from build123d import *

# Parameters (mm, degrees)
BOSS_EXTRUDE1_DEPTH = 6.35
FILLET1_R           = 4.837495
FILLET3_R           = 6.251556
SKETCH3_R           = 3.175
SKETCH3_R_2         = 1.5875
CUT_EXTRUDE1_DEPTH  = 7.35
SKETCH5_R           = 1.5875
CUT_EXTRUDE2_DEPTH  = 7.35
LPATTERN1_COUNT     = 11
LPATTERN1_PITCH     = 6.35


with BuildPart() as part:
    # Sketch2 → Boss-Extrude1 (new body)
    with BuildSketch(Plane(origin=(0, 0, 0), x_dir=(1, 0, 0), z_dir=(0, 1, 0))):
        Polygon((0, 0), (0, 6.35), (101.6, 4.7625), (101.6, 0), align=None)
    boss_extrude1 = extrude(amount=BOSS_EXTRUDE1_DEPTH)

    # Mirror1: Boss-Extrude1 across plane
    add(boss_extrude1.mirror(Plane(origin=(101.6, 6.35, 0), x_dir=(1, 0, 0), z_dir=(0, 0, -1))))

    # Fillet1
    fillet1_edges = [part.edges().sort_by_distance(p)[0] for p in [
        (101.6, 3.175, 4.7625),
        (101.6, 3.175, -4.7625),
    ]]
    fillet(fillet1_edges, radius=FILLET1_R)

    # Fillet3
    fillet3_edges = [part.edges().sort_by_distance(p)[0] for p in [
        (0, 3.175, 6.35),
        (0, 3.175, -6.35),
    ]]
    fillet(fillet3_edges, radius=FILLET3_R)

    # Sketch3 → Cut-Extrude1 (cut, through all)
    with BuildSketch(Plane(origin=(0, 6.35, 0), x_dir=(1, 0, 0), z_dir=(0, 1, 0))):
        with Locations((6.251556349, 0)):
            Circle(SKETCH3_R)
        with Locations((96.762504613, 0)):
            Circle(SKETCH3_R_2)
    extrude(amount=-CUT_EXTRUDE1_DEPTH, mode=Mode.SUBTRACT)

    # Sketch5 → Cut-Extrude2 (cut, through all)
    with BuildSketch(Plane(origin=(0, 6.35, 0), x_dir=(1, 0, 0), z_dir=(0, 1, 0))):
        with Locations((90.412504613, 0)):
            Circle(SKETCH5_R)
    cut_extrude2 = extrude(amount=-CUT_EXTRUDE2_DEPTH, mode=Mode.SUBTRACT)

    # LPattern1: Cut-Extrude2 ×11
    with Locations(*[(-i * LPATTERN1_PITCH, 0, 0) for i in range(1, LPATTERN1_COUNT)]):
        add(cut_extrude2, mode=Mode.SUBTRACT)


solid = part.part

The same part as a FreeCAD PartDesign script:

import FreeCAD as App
import Part
import Sketcher
Q = App.Units.Quantity


def edges_at(feature, points):
    """Names of the edges that pass closest to the given points."""
    edges = feature.Shape.Edges
    near = lambda p: min(range(len(edges)), key=lambda i: edges[i].distToShape(Part.Vertex(*p))[0])
    return sorted({f"Edge{near(p) + 1}" for p in points})

doc = App.newDocument("Part")
body = doc.addObject("PartDesign::Body", "Body")

# Sketch on XZ plane
sketch1 = body.newObject("Sketcher::SketchObject", "Sketch")
sketch1.AttachmentSupport = (doc.getObject("XZ_Plane"), [""])
sketch1.MapMode = "FlatFace"
sketch1.addGeometry(Part.LineSegment(App.Vector(0, -6.3, 0), App.Vector(0, 0, 0)), False)
sketch1.addGeometry(Part.LineSegment(App.Vector(0, 0, 0), App.Vector(101.6, 0, 0)), False)
sketch1.addGeometry(Part.LineSegment(App.Vector(101.6, 0, 0), App.Vector(101.6, -4.8, 0)), False)
sketch1.addGeometry(Part.LineSegment(App.Vector(101.6, -4.8, 0), App.Vector(0, -6.3, 0)), False)
sketch1.addConstraint(Sketcher.Constraint("Coincident", 0, 2, 1, 1))
sketch1.addConstraint(Sketcher.Constraint("Coincident", 1, 2, 2, 1))
sketch1.addConstraint(Sketcher.Constraint("Coincident", 2, 2, 3, 1))
sketch1.addConstraint(Sketcher.Constraint("Coincident", 3, 2, 0, 1))
sketch1.addConstraint(Sketcher.Constraint("Vertical", 0))
sketch1.addConstraint(Sketcher.Constraint("Horizontal", 1))
sketch1.addConstraint(Sketcher.Constraint("Vertical", 2))
sketch1.addConstraint(Sketcher.Constraint("Coincident", 0, 2, -1, 1))
sketch1.addConstraint(Sketcher.Constraint("DistanceX", 1, 1, 1, 2, Q("4 in")))
sketch1.addConstraint(Sketcher.Constraint("DistanceY", 0, 1, 0, 2, Q("0.25 in")))
sketch1.addConstraint(Sketcher.Constraint("DistanceY", 2, 2, 2, 1, Q("0.1875 in")))
pad1 = body.newObject("PartDesign::Pad", "Pad")
pad1.Profile = sketch1
pad1.Length = Q("0.25 in")
pad1.Reversed = True
doc.recompute()

mirrored = body.newObject("PartDesign::Mirrored", "Mirrored")
mirrored.Originals = [pad1]
mirrored.MirrorPlane = (doc.getObject("XY_Plane"), [""])
body.Tip = mirrored
doc.recompute()

fillet = body.newObject("PartDesign::Fillet", "Fillet")
fillet.Base = (mirrored, edges_at(mirrored, [(101.6, 3.175, 4.763), (101.6, 3.175, -4.763)]))
fillet.Radius = 4.837495
doc.recompute()

fillet2 = body.newObject("PartDesign::Fillet", "Fillet001")
fillet2.Base = (fillet, edges_at(fillet, [(0, 3.175, 6.35), (0, 3.175, -6.35)]))
fillet2.Radius = 6.251556

# Sketch on XZ plane
sketch2 = body.newObject("Sketcher::SketchObject", "Sketch001")
sketch2.AttachmentSupport = (doc.getObject("XZ_Plane"), [""])
sketch2.MapMode = "FlatFace"
sketch2.AttachmentOffset = App.Placement(App.Vector(0, 0, -0.25 * 25.4), App.Rotation())
sketch2.addGeometry(Part.Circle(App.Vector(6.3, 0, 0), App.Vector(0, 0, 1), 3.2), False)
sketch2.addGeometry(Part.Circle(App.Vector(96.8, 0, 0), App.Vector(0, 0, 1), 1.6), False)
sketch2.addConstraint(Sketcher.Constraint("PointOnObject", 0, 3, -1))
sketch2.addConstraint(Sketcher.Constraint("PointOnObject", 1, 3, -1))
sketch2.addConstraint(Sketcher.Constraint("Diameter", 0, Q("0.25 in")))
sketch2.addConstraint(Sketcher.Constraint("Diameter", 1, Q("0.125 in")))
sketch2.addConstraint(Sketcher.Constraint("DistanceX", 0, 3, 1, 3, Q("90.510948 mm")))
sketch2.addConstraint(Sketcher.Constraint("DistanceX", -1, 1, 0, 3, Q("6.251556 mm")))
pocket1 = body.newObject("PartDesign::Pocket", "Pocket")
pocket1.Profile = sketch2
pocket1.Type = "ThroughAll"
pocket1.Reversed = True

# Sketch on XZ plane
sketch3 = body.newObject("Sketcher::SketchObject", "Sketch002")
sketch3.AttachmentSupport = (doc.getObject("XZ_Plane"), [""])
sketch3.MapMode = "FlatFace"
sketch3.AttachmentOffset = App.Placement(App.Vector(0, 0, -0.25 * 25.4), App.Rotation())
sketch3.addGeometry(Part.Circle(App.Vector(90.4, 0, 0), App.Vector(0, 0, 1), 1.6), False)
sketch3.addConstraint(Sketcher.Constraint("PointOnObject", 0, 3, -1))
sketch3.addConstraint(Sketcher.Constraint("Diameter", 0, Q("0.125 in")))
sketch3.addConstraint(Sketcher.Constraint("DistanceX", -1, 1, 0, 3, Q("90.412505 mm")))
pocket2 = body.newObject("PartDesign::Pocket", "Pocket001")
pocket2.Profile = sketch3
pocket2.Type = "ThroughAll"
pocket2.Reversed = True
doc.recompute()

linearpattern = body.newObject("PartDesign::LinearPattern", "LinearPattern")
linearpattern.Originals = [pocket2]
linearpattern.Direction = (doc.getObject("X_Axis"), [""])
linearpattern.Mode = "offset"
linearpattern.Offset = Q("0.25 in")
linearpattern.Occurrences = 11
linearpattern.Reversed = True
body.Tip = linearpattern

doc.recompute()
